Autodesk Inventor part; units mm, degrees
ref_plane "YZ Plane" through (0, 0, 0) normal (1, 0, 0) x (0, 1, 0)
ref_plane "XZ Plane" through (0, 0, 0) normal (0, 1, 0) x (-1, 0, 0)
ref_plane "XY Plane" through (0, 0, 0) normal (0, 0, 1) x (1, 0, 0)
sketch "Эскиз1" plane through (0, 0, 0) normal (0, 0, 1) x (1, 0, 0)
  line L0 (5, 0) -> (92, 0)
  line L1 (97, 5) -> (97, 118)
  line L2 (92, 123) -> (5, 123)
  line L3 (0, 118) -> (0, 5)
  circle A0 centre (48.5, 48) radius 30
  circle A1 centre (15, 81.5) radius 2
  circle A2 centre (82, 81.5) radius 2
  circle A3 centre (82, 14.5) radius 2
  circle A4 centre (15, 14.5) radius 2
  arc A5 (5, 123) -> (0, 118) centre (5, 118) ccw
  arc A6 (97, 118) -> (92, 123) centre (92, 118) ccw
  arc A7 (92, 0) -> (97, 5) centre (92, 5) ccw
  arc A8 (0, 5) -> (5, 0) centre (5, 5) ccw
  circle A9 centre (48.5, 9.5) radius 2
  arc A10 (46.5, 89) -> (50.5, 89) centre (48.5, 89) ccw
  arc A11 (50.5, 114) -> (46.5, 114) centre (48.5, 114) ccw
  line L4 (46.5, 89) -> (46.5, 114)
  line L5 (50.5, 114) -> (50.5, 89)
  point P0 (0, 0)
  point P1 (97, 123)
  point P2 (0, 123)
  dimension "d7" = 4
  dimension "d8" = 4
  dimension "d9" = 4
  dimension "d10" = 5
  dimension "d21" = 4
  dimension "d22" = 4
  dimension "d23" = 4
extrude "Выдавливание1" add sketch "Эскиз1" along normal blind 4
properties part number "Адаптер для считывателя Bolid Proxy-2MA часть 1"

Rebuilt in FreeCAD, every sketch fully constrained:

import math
import FreeCAD as App
import Part
import Sketcher
from FreeCAD import Vector
Q = App.Units.Quantity

doc = App.newDocument("Part")
body = doc.addObject("PartDesign::Body", "Body")

sketch1 = body.newObject("Sketcher::SketchObject", "Sketch")
sketch1.AttachmentSupport = (doc.getObject("XY_Plane"), [""])
sketch1.MapMode = "FlatFace"
sketch1.addGeometry([
    Part.ArcOfCircle(Part.Circle(Vector(5, 5, 0), Vector(0, 0, 1), 5), math.radians(180), math.radians(270)),
    Part.LineSegment(Vector(5, 0, 0), Vector(92, 0, 0)),
    Part.ArcOfCircle(Part.Circle(Vector(92, 5, 0), Vector(0, 0, 1), 5), math.radians(-90), math.radians(0)),
    Part.LineSegment(Vector(97, 5, 0), Vector(97, 118, 0)),
    Part.ArcOfCircle(Part.Circle(Vector(92, 118, 0), Vector(0, 0, 1), 5), math.radians(0), math.radians(90)),
    Part.LineSegment(Vector(92, 123, 0), Vector(5, 123, 0)),
    Part.ArcOfCircle(Part.Circle(Vector(5, 118, 0), Vector(0, 0, 1), 5), math.radians(90), math.radians(180)),
    Part.LineSegment(Vector(0, 118, 0), Vector(0, 5, 0)),
    Part.Circle(Vector(15, 14.5, 0), Vector(0, 0, 1), 2),
    Part.Circle(Vector(48.5, 9.5, 0), Vector(0, 0, 1), 2),
    Part.Circle(Vector(82, 14.5, 0), Vector(0, 0, 1), 2),
    Part.Circle(Vector(48.5, 48, 0), Vector(0, 0, 1), 30),
    Part.Circle(Vector(15, 81.5, 0), Vector(0, 0, 1), 2),
    Part.Circle(Vector(82, 81.5, 0), Vector(0, 0, 1), 2),
    Part.ArcOfCircle(Part.Circle(Vector(48.5, 89, 0), Vector(0, 0, 1), 2), math.radians(180), math.radians(360)),
    Part.LineSegment(Vector(46.5, 89, 0), Vector(46.5, 114, 0)),
    Part.ArcOfCircle(Part.Circle(Vector(48.5, 114, 0), Vector(0, 0, 1), 2), math.radians(0), math.radians(180)),
    Part.LineSegment(Vector(50.5, 114, 0), Vector(50.5, 89, 0)),
], False)
sketch1.addConstraint([
    Sketcher.Constraint("Tangent", 0, 2, 1, 1),
    Sketcher.Constraint("Tangent", 1, 2, 2, 1),
    Sketcher.Constraint("Tangent", 2, 2, 3, 1),
    Sketcher.Constraint("Tangent", 3, 2, 4, 1),
    Sketcher.Constraint("Tangent", 4, 2, 5, 1),
    Sketcher.Constraint("Tangent", 5, 2, 6, 1),
    Sketcher.Constraint("Tangent", 6, 2, 7, 1),
    Sketcher.Constraint("Tangent", 7, 2, 0, 1),
    Sketcher.Constraint("Tangent", 14, 1, 15, 1),
    Sketcher.Constraint("Tangent", 15, 2, 16, 2),
    Sketcher.Constraint("Tangent", 16, 1, 17, 1),
    Sketcher.Constraint("Tangent", 17, 2, 14, 2),
    Sketcher.Constraint("Horizontal", 1),
    Sketcher.Constraint("Vertical", 3),
    Sketcher.Constraint("Horizontal", 5),
    Sketcher.Constraint("Vertical", 7),
    Sketcher.Constraint("Vertical", 15),
    Sketcher.Constraint("Vertical", 17),
    Sketcher.Constraint("Equal", 0, 2),
    Sketcher.Constraint("Equal", 2, 4),
    Sketcher.Constraint("Equal", 4, 6),
    Sketcher.Constraint("Equal", 8, 9),
    Sketcher.Constraint("Equal", 9, 10),
    Sketcher.Constraint("Equal", 10, 12),
    Sketcher.Constraint("Equal", 12, 13),
    Sketcher.Constraint("Equal", 13, 14),
    Sketcher.Constraint("PointOnObject", 0, 2, -1),
    Sketcher.Constraint("PointOnObject", 6, 2, -2),
    Sketcher.Constraint("Horizontal", 8, 3, 10, 3),
    Sketcher.Constraint("Horizontal", 12, 3, 13, 3),
    Sketcher.Constraint("Vertical", 9, 3, 11, 3),
    Sketcher.Constraint("Vertical", 8, 3, 12, 3),
    Sketcher.Constraint("Vertical", 10, 3, 13, 3),
    Sketcher.Constraint("Vertical", 11, 3, 14, 3),
    Sketcher.Constraint("Diameter", 8, Q("4 mm")),
    Sketcher.Constraint("Radius", 0, Q("5 mm")),
    Sketcher.Constraint("Diameter", 11, Q("60 mm")),
    Sketcher.Constraint("DistanceY", 9, 3, 8, 3, Q("5 mm")),
    Sketcher.Constraint("DistanceY", 16, 3, 4, 3, Q("4 mm")),
    Sketcher.Constraint("DistanceX", 1, 1, 1, 2, Q("87 mm")),
    Sketcher.Constraint("DistanceY", 3, 1, 3, 2, Q("113 mm")),
    Sketcher.Constraint("DistanceY", 15, 1, 15, 2, Q("25 mm")),
    Sketcher.Constraint("DistanceX", -1, 1, 8, 3, Q("15 mm")),
    Sketcher.Constraint("DistanceX", -1, 1, 10, 3, Q("82 mm")),
    Sketcher.Constraint("DistanceY", -1, 1, 11, 3, Q("48 mm")),
    Sketcher.Constraint("DistanceY", 8, 3, 12, 3, Q("67 mm")),
    Sketcher.Constraint("DistanceY", -1, 1, 8, 3, Q("14.5 mm")),
    Sketcher.Constraint("DistanceX", -1, 1, 9, 3, Q("48.5 mm")),
])
pad1 = body.newObject("PartDesign::Pad", "Pad")
pad1.Profile = sketch1
pad1.Length = 4

doc.recompute()
